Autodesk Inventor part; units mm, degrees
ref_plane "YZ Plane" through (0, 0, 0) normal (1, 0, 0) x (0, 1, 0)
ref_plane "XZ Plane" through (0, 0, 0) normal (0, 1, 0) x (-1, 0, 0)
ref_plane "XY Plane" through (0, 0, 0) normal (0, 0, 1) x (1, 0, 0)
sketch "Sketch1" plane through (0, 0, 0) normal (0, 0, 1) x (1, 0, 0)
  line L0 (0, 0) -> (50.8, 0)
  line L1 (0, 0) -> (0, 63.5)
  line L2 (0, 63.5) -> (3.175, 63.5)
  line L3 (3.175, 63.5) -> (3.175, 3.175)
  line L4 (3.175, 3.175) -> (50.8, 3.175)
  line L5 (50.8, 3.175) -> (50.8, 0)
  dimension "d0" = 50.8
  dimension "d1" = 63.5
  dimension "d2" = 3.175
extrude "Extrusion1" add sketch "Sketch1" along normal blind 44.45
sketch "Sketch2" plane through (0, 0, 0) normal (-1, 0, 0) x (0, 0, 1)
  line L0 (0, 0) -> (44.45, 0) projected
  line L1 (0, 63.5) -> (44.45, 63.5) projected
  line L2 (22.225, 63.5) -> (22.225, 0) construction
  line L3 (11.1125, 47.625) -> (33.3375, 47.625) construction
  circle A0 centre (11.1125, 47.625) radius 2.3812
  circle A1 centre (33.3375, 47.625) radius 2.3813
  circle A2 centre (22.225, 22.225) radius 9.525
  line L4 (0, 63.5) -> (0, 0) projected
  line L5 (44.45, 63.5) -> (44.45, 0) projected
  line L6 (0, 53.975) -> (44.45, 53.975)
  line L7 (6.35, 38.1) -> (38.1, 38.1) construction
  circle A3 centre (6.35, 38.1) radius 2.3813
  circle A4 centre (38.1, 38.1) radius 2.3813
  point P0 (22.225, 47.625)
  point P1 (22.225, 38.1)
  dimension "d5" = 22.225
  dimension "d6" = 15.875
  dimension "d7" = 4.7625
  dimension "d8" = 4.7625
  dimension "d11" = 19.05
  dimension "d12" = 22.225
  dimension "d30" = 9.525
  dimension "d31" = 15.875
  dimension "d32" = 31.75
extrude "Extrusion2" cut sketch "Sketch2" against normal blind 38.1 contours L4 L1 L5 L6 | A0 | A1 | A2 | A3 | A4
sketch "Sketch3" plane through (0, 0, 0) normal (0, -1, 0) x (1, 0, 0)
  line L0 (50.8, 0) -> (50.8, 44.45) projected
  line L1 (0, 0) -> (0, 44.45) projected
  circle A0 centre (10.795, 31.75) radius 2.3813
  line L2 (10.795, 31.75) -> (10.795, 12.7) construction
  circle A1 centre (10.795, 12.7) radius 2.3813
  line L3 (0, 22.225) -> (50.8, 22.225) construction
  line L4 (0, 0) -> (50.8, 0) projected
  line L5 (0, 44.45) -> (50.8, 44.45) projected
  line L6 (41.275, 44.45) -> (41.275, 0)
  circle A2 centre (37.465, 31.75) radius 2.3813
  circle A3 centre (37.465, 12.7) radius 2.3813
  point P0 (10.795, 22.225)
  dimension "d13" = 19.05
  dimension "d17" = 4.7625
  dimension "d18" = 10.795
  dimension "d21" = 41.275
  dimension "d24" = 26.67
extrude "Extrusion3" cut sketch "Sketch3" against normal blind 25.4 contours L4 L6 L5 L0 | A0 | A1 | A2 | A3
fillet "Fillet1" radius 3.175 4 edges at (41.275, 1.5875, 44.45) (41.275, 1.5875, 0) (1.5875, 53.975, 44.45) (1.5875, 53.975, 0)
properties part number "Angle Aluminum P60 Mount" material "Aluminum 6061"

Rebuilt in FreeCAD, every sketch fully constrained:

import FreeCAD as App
import Part
import Sketcher
from FreeCAD import Vector
Q = App.Units.Quantity


def edges_at(feature, points):
    """Names of the edges that pass closest to the given points."""
    edges = feature.Shape.Edges
    near = lambda p: min(range(len(edges)), key=lambda i: edges[i].distToShape(Part.Vertex(*p))[0])
    return sorted({f"Edge{near(p) + 1}" for p in points})

doc = App.newDocument("Part")
body = doc.addObject("PartDesign::Body", "Body")

# Sketch on XY plane
sketch1 = doc.addObject("Sketcher::SketchObject", "Sketch")
body.addObject(sketch1)
sketch1.AttachmentSupport = (doc.XY_Plane, [""])
sketch1.MapMode = "FlatFace"
sketch1.addGeometry([
    Part.LineSegment(Vector(0, 63.5, 0), Vector(0, 0, 0)),  # 0
    Part.LineSegment(Vector(0, 0, 0), Vector(50.8, 0, 0)),  # 1
    Part.LineSegment(Vector(50.8, 0, 0), Vector(50.8, 3.175, 0)),  # 2
    Part.LineSegment(Vector(50.8, 3.175, 0), Vector(3.175, 3.175, 0)),  # 3
    Part.LineSegment(Vector(3.175, 3.175, 0), Vector(3.175, 63.5, 0)),  # 4
    Part.LineSegment(Vector(3.175, 63.5, 0), Vector(0, 63.5, 0)),  # 5
], False)
sketch1.addConstraint([
    Sketcher.Constraint("Coincident", 0, 2, 1, 1),
    Sketcher.Constraint("Coincident", 1, 2, 2, 1),
    Sketcher.Constraint("Coincident", 2, 2, 3, 1),
    Sketcher.Constraint("Coincident", 3, 2, 4, 1),
    Sketcher.Constraint("Coincident", 4, 2, 5, 1),
    Sketcher.Constraint("Coincident", 5, 2, 0, 1),
    Sketcher.Constraint("Vertical", 0),
    Sketcher.Constraint("Horizontal", 1),
    Sketcher.Constraint("Vertical", 2),
    Sketcher.Constraint("Horizontal", 3),
    Sketcher.Constraint("Vertical", 4),
    Sketcher.Constraint("Horizontal", 5),
    Sketcher.Constraint("Coincident", 0, 2, -1, 1),
    Sketcher.Constraint("Equal", 5, 2),
    Sketcher.Constraint("DistanceX", 1, 1, 1, 2, Q("2 in")),
    Sketcher.Constraint("DistanceY", 0, 2, 0, 1, Q("2.5 in")),
    Sketcher.Constraint("DistanceX", 5, 2, 5, 1, Q("0.125 in")),
])
pad1 = doc.addObject("PartDesign::Pad", "Pad")
body.addObject(pad1)
pad1.Profile = sketch1
pad1.Length = Q("1.75 in")

# Sketch on YZ plane
sketch2 = doc.addObject("Sketcher::SketchObject", "Sketch001")
body.addObject(sketch2)
sketch2.AttachmentSupport = (doc.YZ_Plane, [""])
sketch2.MapMode = "FlatFace"
sketch2.addGeometry([
    Part.LineSegment(Vector(63.5, 0, 0), Vector(53.975, 0, 0)),  # 0
    Part.LineSegment(Vector(53.975, 0, 0), Vector(53.975, 44.45, 0)),  # 1
    Part.LineSegment(Vector(53.975, 44.45, 0), Vector(63.5, 44.45, 0)),  # 2
    Part.LineSegment(Vector(63.5, 44.45, 0), Vector(63.5, 0, 0)),  # 3
    Part.Circle(Vector(47.625, 11.1125, 0), Vector(0, 0, 1), 2.3812),  # 4
    Part.Circle(Vector(47.625, 33.3375, 0), Vector(0, 0, 1), 2.3813),  # 5
    Part.Circle(Vector(22.225, 22.225, 0), Vector(0, 0, 1), 9.525),  # 6
    Part.Circle(Vector(38.1, 6.35, 0), Vector(0, 0, 1), 2.3813),  # 7
    Part.Circle(Vector(38.1, 38.1, 0), Vector(0, 0, 1), 2.3813),  # 8
], False)
sketch2.addConstraint([
    Sketcher.Constraint("Coincident", 0, 2, 1, 1),
    Sketcher.Constraint("Coincident", 1, 2, 2, 1),
    Sketcher.Constraint("Coincident", 2, 2, 3, 1),
    Sketcher.Constraint("Coincident", 3, 2, 0, 1),
    Sketcher.Constraint("Horizontal", 0),
    Sketcher.Constraint("Vertical", 1),
    Sketcher.Constraint("Horizontal", 2),
    Sketcher.Constraint("Vertical", 3),
    Sketcher.Constraint("Equal", 4, 5),
    Sketcher.Constraint("Equal", 5, 7),
    Sketcher.Constraint("Equal", 7, 8),
    Sketcher.Constraint("PointOnObject", 0, 2, -1),
    Sketcher.Constraint("Vertical", 4, 3, 5, 3),
    Sketcher.Constraint("Vertical", 7, 3, 8, 3),
    Sketcher.Constraint("Diameter", 6, Q("0.75 in")),
    Sketcher.Constraint("Diameter", 4, Q("0.1875 in")),
    Sketcher.Constraint("DistanceX", 0, 2, 0, 1, Q("0.375 in")),
    Sketcher.Constraint("DistanceY", 7, 3, 8, 3, Q("1.25 in")),
    Sketcher.Constraint("DistanceX", 6, 3, 0, 2, Q("1.25 in")),
    Sketcher.Constraint("DistanceX", -1, 1, 6, 3, Q("0.875 in")),
    Sketcher.Constraint("DistanceY", -1, 1, 6, 3, Q("0.875 in")),
    Sketcher.Constraint("DistanceY", 4, 3, 5, 3, Q("0.875 in")),
    Sketcher.Constraint("DistanceX", 6, 3, 5, 3, Q("1 in")),
    Sketcher.Constraint("DistanceX", 7, 3, 4, 3, Q("0.375 in")),
    Sketcher.Constraint("DistanceY", 7, 3, 4, 3, Q("0.1875 in")),
    Sketcher.Constraint("DistanceY", 7, 3, 6, 3, Q("0.625 in")),
    Sketcher.Constraint("DistanceY", 6, 3, 1, 2, Q("0.875 in")),
])
pocket1 = doc.addObject("PartDesign::Pocket", "Pocket")
body.addObject(pocket1)
pocket1.Profile = sketch2
pocket1.Length = Q("1.5 in")
pocket1.Reversed = True

# Sketch on XZ plane
sketch3 = doc.addObject("Sketcher::SketchObject", "Sketch002")
body.addObject(sketch3)
sketch3.AttachmentSupport = (doc.XZ_Plane, [""])
sketch3.MapMode = "FlatFace"
sketch3.addGeometry([
    Part.LineSegment(Vector(41.275, 0, 0), Vector(50.8, 0, 0)),  # 0
    Part.LineSegment(Vector(50.8, 0, 0), Vector(50.8, 44.45, 0)),  # 1
    Part.LineSegment(Vector(50.8, 44.45, 0), Vector(41.275, 44.45, 0)),  # 2
    Part.LineSegment(Vector(41.275, 44.45, 0), Vector(41.275, 0, 0)),  # 3
    Part.Circle(Vector(10.795, 31.75, 0), Vector(0, 0, 1), 2.3813),  # 4
    Part.Circle(Vector(10.795, 12.7, 0), Vector(0, 0, 1), 2.3813),  # 5
    Part.Circle(Vector(37.465, 31.75, 0), Vector(0, 0, 1), 2.3813),  # 6
    Part.Circle(Vector(37.465, 12.7, 0), Vector(0, 0, 1), 2.3813),  # 7
], False)
sketch3.addConstraint([
    Sketcher.Constraint("Coincident", 0, 2, 1, 1),
    Sketcher.Constraint("Coincident", 1, 2, 2, 1),
    Sketcher.Constraint("Coincident", 2, 2, 3, 1),
    Sketcher.Constraint("Coincident", 3, 2, 0, 1),
    Sketcher.Constraint("Horizontal", 0),
    Sketcher.Constraint("Vertical", 1),
    Sketcher.Constraint("Horizontal", 2),
    Sketcher.Constraint("Vertical", 3),
    Sketcher.Constraint("Equal", 4, 5),
    Sketcher.Constraint("Equal", 5, 6),
    Sketcher.Constraint("Equal", 6, 7),
    Sketcher.Constraint("PointOnObject", 0, 2, -1),
    Sketcher.Constraint("Horizontal", 4, 3, 6, 3),
    Sketcher.Constraint("Horizontal", 5, 3, 7, 3),
    Sketcher.Constraint("Vertical", 4, 3, 5, 3),
    Sketcher.Constraint("Vertical", 6, 3, 7, 3),
    Sketcher.Constraint("Diameter", 4, Q("0.1875 in")),
    Sketcher.Constraint("DistanceY", 5, 3, 4, 3, Q("0.75 in")),
    Sketcher.Constraint("DistanceX", 4, 3, 6, 3, Q("1.05 in")),
    Sketcher.Constraint("DistanceX", -1, 1, 4, 3, Q("0.425 in")),
    Sketcher.Constraint("DistanceX", -1, 1, 2, 2, Q("1.625 in")),
    Sketcher.Constraint("DistanceX", -1, 1, 0, 2, Q("2 in")),
    Sketcher.Constraint("DistanceY", 1, 1, 1, 2, Q("1.75 in")),
    Sketcher.Constraint("DistanceY", -1, 1, 5, 3, Q("0.5 in")),
])
pocket2 = doc.addObject("PartDesign::Pocket", "Pocket001")
body.addObject(pocket2)
pocket2.Profile = sketch3
pocket2.Length = Q("1 in")
doc.recompute()

fillet = doc.addObject("PartDesign::Fillet", "Fillet")
body.addObject(fillet)
fillet.Base = (pocket2, edges_at(pocket2, [
    (41.275, 1.587, 44.45),
    (41.275, 1.587, 0),
    (1.587, 53.975, 44.45),
    (1.587, 53.975, 0),
]))
fillet.Radius = Q("0.125 in")

doc.recompute()
